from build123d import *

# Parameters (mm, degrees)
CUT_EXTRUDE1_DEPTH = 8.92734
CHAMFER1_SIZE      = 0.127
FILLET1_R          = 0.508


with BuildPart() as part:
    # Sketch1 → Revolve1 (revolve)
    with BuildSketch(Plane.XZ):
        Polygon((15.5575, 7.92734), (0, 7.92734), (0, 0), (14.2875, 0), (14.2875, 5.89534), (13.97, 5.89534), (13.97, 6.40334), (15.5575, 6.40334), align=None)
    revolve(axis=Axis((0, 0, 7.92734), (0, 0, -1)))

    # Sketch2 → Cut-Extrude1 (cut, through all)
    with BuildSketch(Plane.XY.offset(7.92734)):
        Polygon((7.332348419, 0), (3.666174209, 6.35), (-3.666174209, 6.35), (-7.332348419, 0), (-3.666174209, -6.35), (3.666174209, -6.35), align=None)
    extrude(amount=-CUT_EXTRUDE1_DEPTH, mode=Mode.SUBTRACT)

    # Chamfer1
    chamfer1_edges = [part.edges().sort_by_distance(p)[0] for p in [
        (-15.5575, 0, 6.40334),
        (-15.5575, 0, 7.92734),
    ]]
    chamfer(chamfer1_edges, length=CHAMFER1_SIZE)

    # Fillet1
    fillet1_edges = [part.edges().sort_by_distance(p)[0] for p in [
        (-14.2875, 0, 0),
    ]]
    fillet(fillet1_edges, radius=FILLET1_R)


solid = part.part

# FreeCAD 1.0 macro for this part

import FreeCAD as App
import Part
import Sketcher
Q = App.Units.Quantity


def edges_at(feature, points):
    """Names of the edges that pass closest to the given points."""
    edges = feature.Shape.Edges
    near = lambda p: min(range(len(edges)), key=lambda i: edges[i].distToShape(Part.Vertex(*p))[0])
    return sorted({f"Edge{near(p) + 1}" for p in points})

doc = App.newDocument("Part")
params = doc.addObject("Spreadsheet::Sheet", "Params")
for row, (alias, value) in enumerate([
    ("sketch1_height", "0.02 in"),
    ("sketch1_height2", "0.06 in"),
    ("sketch1_width", "0.5625 in"),
    ("sketch1_width2", "0.0625 in"),
    ("revolution_angle", "360 deg"),
    ("chamfer_size", "0.005 in"),
    ("fillet_radius", "0.02 in"),
], start=1):
    params.set(f"A{row}", alias)
    params.set(f"B{row}", "=" + value)
    params.setAlias(f"B{row}", alias)

body = doc.addObject("PartDesign::Body", "Body")

# Sketch on XZ plane
sketch1 = body.newObject("Sketcher::SketchObject", "Sketch")
sketch1.AttachmentSupport = (doc.getObject("XZ_Plane"), [""])
sketch1.MapMode = "FlatFace"
sketch1.addGeometry(Part.LineSegment(App.Vector(15.56, 7.93, 0), App.Vector(0, 7.93, 0)), False)
sketch1.addGeometry(Part.LineSegment(App.Vector(0, 7.93, 0), App.Vector(0, 0, 0)), False)
sketch1.addGeometry(Part.LineSegment(App.Vector(0, 0, 0), App.Vector(14.29, 0, 0)), False)
sketch1.addGeometry(Part.LineSegment(App.Vector(14.29, 0, 0), App.Vector(14.29, 5.9, 0)), False)
sketch1.addGeometry(Part.LineSegment(App.Vector(14.29, 5.9, 0), App.Vector(13.97, 5.9, 0)), False)
sketch1.addGeometry(Part.LineSegment(App.Vector(13.97, 5.9, 0), App.Vector(13.97, 6.4, 0)), False)
sketch1.addGeometry(Part.LineSegment(App.Vector(13.97, 6.4, 0), App.Vector(15.56, 6.4, 0)), False)
sketch1.addGeometry(Part.LineSegment(App.Vector(15.56, 6.4, 0), App.Vector(15.56, 7.93, 0)), False)
sketch1.addConstraint(Sketcher.Constraint("Coincident", 0, 2, 1, 1))
sketch1.addConstraint(Sketcher.Constraint("Coincident", 1, 2, 2, 1))
sketch1.addConstraint(Sketcher.Constraint("Coincident", 2, 2, 3, 1))
sketch1.addConstraint(Sketcher.Constraint("Coincident", 3, 2, 4, 1))
sketch1.addConstraint(Sketcher.Constraint("Coincident", 4, 2, 5, 1))
sketch1.addConstraint(Sketcher.Constraint("Coincident", 5, 2, 6, 1))
sketch1.addConstraint(Sketcher.Constraint("Coincident", 6, 2, 7, 1))
sketch1.addConstraint(Sketcher.Constraint("Coincident", 7, 2, 0, 1))
sketch1.addConstraint(Sketcher.Constraint("Horizontal", 0))
sketch1.addConstraint(Sketcher.Constraint("Vertical", 1))
sketch1.addConstraint(Sketcher.Constraint("Horizontal", 2))
sketch1.addConstraint(Sketcher.Constraint("Vertical", 3))
sketch1.addConstraint(Sketcher.Constraint("Horizontal", 4))
sketch1.addConstraint(Sketcher.Constraint("Vertical", 5))
sketch1.addConstraint(Sketcher.Constraint("Horizontal", 6))
sketch1.addConstraint(Sketcher.Constraint("Vertical", 7))
sketch1.addConstraint(Sketcher.Constraint("Coincident", 1, 2, -1, 1))
sketch1.addConstraint(Sketcher.Constraint("DistanceY", 5, 1, 5, 2, Q("0.02 in")))
sketch1.addConstraint(Sketcher.Constraint("DistanceY", 7, 1, 7, 2, Q("0.06 in")))
sketch1.addConstraint(Sketcher.Constraint("DistanceX", 2, 1, 2, 2, Q("0.5625 in")))
sketch1.addConstraint(Sketcher.Constraint("DistanceX", 6, 1, 6, 2, Q("0.0625 in")))
sketch1.addConstraint(Sketcher.Constraint("DistanceX", -1, 1, 4, 2, Q("0.55 in")))
sketch1.addConstraint(Sketcher.Constraint("DistanceY", 1, 2, 1, 1, Q("0.3121 in")))
sketch1.setExpression("Constraints[17]", "Params.sketch1_height")
sketch1.setExpression("Constraints[18]", "Params.sketch1_height2")
sketch1.setExpression("Constraints[19]", "Params.sketch1_width")
sketch1.setExpression("Constraints[20]", "Params.sketch1_width2")
revolution = body.newObject("PartDesign::Revolution", "Revolution")
revolution.Profile = sketch1
revolution.ReferenceAxis = (sketch1, ["V_Axis"])
revolution.setExpression("Angle", "Params.revolution_angle")

# Sketch on XY plane
sketch2 = body.newObject("Sketcher::SketchObject", "Sketch001")
sketch2.AttachmentSupport = (doc.getObject("XY_Plane"), [""])
sketch2.MapMode = "FlatFace"
sketch2.AttachmentOffset = App.Placement(App.Vector(0, 0, 0.3121 * 25.4), App.Rotation())
sketch2.addGeometry(Part.LineSegment(App.Vector(7, 0, 0), App.Vector(4, 6, 0)), False)
sketch2.addGeometry(Part.LineSegment(App.Vector(4, 6, 0), App.Vector(-4, 6, 0)), False)
sketch2.addGeometry(Part.LineSegment(App.Vector(-4, 6, 0), App.Vector(-7, 0, 0)), False)
sketch2.addGeometry(Part.LineSegment(App.Vector(-7, 0, 0), App.Vector(-4, -6, 0)), False)
sketch2.addGeometry(Part.LineSegment(App.Vector(-4, -6, 0), App.Vector(4, -6, 0)), False)
sketch2.addGeometry(Part.LineSegment(App.Vector(4, -6, 0), App.Vector(7, 0, 0)), False)
sketch2.addConstraint(Sketcher.Constraint("Coincident", 0, 2, 1, 1))
sketch2.addConstraint(Sketcher.Constraint("Coincident", 1, 2, 2, 1))
sketch2.addConstraint(Sketcher.Constraint("Coincident", 2, 2, 3, 1))
sketch2.addConstraint(Sketcher.Constraint("Coincident", 3, 2, 4, 1))
sketch2.addConstraint(Sketcher.Constraint("Coincident", 4, 2, 5, 1))
sketch2.addConstraint(Sketcher.Constraint("Coincident", 5, 2, 0, 1))
sketch2.addConstraint(Sketcher.Constraint("Horizontal", 1))
sketch2.addConstraint(Sketcher.Constraint("Horizontal", 4))
sketch2.addConstraint(Sketcher.Constraint("Symmetric", 0, 2, 3, 2, -1, 1))
sketch2.addConstraint(Sketcher.Constraint("Symmetric", 2, 2, 5, 2, -1, 1))
sketch2.addConstraint(Sketcher.Constraint("PointOnObject", 2, 2, -1))
sketch2.addConstraint(Sketcher.Constraint("Parallel", 2, 5))
sketch2.addConstraint(Sketcher.Constraint("Vertical", 1, 2, 3, 2))
sketch2.addConstraint(Sketcher.Constraint("Angle", 0, Q("120 deg")))
sketch2.addConstraint(Sketcher.Constraint("DistanceY", 3, 2, 1, 2, Q("0.5 in")))
sketch2.addConstraint(Sketcher.Constraint("DistanceX", 1, 2, 1, 1, Q("7.332348 mm")))
pocket1 = body.newObject("PartDesign::Pocket", "Pocket")
pocket1.Profile = sketch2
pocket1.Type = "ThroughAll"
doc.recompute()

chamfer = body.newObject("PartDesign::Chamfer", "Chamfer")
chamfer.Base = (pocket1, edges_at(pocket1, [(-15.557, 0, 6.403), (-15.557, 0, 7.927)]))
chamfer.setExpression("Size", "Params.chamfer_size")
doc.recompute()

fillet = body.newObject("PartDesign::Fillet", "Fillet")
fillet.Base = (chamfer, edges_at(chamfer, [(-14.287, 0, 0)]))
fillet.setExpression("Radius", "Params.fillet_radius")

doc.recompute()
